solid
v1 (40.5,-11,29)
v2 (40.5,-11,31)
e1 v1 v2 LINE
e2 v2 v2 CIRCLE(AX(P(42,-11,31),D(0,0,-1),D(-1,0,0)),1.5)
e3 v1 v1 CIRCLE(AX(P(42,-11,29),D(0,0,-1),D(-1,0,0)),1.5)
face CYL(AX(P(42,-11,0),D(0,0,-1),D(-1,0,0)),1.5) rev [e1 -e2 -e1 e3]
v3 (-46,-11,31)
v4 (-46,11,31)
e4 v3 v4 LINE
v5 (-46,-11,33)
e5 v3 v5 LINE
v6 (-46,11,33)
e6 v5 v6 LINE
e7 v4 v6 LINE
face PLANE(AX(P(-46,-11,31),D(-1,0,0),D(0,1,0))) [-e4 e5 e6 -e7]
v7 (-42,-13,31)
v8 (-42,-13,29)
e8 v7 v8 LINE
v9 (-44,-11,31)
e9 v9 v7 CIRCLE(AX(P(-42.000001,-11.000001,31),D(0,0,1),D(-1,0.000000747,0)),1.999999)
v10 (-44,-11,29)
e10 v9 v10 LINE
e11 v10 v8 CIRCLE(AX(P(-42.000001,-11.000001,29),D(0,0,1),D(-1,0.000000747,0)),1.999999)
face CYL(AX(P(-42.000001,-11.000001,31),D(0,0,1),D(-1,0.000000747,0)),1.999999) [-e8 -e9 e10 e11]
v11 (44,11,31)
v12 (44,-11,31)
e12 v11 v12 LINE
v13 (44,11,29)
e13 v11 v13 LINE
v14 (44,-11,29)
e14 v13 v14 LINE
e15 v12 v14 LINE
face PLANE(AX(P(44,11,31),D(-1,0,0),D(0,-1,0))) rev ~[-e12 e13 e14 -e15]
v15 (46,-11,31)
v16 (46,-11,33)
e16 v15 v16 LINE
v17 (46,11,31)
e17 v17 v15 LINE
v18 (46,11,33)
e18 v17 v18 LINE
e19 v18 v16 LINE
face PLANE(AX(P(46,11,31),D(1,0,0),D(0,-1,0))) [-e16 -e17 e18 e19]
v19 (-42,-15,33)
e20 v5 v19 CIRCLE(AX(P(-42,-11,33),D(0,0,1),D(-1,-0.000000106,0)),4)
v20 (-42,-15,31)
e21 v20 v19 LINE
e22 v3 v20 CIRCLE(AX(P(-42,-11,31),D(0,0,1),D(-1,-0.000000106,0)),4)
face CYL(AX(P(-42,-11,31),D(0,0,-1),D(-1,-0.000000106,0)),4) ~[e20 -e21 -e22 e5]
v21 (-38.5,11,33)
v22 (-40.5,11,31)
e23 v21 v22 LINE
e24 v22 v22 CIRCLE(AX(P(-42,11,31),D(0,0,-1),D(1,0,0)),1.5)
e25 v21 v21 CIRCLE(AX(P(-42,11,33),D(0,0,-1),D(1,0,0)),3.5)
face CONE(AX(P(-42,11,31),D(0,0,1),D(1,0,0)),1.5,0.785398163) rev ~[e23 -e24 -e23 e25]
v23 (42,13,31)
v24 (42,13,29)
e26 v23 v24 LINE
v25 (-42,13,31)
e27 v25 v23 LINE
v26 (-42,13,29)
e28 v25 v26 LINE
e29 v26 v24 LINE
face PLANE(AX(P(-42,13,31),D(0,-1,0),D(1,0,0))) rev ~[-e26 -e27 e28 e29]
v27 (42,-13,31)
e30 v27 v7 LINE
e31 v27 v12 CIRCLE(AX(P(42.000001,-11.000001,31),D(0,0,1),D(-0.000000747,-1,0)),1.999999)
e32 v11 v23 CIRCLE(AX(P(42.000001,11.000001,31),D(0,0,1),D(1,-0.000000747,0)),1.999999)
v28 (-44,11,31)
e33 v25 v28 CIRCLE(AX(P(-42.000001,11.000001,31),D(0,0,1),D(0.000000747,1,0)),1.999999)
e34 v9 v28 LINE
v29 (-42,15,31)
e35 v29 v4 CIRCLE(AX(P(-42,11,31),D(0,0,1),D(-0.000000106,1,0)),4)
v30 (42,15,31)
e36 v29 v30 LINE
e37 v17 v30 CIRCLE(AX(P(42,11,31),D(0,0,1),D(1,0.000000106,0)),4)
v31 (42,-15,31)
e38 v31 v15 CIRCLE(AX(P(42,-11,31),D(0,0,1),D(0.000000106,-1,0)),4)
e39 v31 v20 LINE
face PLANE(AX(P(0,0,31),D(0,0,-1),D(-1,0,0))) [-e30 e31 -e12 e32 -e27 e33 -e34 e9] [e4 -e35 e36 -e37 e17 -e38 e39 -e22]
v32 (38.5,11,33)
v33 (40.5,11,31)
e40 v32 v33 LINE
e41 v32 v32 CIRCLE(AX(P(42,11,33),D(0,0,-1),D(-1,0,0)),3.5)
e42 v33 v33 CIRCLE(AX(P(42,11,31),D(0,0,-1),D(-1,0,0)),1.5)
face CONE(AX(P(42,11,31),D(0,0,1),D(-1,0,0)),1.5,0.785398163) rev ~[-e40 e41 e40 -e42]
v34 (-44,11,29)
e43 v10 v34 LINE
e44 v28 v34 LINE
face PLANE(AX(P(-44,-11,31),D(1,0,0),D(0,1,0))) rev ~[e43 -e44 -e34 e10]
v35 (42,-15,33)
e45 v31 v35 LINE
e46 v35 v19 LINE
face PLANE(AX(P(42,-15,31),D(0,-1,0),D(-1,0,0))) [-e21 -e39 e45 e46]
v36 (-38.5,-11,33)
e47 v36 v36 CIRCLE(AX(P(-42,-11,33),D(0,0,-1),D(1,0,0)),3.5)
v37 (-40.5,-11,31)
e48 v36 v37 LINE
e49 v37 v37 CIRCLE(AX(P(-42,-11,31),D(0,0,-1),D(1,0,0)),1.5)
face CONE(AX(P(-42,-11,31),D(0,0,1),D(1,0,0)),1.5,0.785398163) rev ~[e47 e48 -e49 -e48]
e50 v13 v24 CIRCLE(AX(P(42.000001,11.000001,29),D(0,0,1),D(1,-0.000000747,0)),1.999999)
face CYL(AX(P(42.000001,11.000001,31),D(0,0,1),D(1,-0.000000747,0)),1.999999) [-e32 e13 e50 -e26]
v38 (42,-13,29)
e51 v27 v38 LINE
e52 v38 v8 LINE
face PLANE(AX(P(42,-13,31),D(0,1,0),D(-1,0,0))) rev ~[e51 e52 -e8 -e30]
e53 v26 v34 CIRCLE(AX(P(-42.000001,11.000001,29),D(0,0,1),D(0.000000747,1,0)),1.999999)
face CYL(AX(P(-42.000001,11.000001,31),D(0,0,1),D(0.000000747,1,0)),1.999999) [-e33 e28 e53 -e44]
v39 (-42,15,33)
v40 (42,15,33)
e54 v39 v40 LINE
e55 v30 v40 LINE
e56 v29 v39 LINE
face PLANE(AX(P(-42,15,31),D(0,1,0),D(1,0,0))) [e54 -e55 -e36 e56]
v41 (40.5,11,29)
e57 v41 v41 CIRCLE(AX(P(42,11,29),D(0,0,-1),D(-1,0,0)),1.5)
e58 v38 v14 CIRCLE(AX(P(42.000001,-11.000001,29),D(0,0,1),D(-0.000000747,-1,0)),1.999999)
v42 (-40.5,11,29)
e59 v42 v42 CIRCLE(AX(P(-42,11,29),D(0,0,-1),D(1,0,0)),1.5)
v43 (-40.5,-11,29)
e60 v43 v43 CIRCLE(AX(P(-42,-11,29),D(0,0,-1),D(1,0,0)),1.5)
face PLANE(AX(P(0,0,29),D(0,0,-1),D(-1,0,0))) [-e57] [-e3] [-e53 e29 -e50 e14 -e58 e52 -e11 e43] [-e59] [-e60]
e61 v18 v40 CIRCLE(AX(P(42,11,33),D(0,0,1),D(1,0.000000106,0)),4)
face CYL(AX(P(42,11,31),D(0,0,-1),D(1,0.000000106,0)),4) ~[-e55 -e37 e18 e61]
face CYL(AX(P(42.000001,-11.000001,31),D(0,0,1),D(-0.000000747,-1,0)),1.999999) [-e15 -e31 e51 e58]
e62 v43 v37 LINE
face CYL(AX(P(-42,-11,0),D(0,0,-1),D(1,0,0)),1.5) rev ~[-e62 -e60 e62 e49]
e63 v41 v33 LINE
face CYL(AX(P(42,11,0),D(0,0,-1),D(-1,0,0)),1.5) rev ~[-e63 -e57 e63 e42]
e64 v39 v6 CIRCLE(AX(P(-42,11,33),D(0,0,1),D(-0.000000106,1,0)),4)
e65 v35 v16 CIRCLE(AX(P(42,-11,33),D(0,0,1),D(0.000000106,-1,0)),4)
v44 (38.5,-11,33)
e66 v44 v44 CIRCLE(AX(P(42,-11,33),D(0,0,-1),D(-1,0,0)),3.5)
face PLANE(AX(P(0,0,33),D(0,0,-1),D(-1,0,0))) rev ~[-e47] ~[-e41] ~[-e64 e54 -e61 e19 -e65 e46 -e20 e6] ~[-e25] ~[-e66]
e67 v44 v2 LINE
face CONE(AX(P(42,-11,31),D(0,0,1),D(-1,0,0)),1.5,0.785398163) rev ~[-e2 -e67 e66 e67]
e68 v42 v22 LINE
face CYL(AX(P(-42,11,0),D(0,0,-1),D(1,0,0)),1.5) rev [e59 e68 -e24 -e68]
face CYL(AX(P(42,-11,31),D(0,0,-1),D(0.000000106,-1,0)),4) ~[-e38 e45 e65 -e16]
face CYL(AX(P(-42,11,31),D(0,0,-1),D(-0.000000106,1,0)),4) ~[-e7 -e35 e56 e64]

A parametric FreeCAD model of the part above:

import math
import FreeCAD as App
import Part
import Sketcher
from FreeCAD import Vector
Q = App.Units.Quantity


def edges_at(feature, points):
    """Names of the edges that pass closest to the given points."""
    edges = feature.Shape.Edges
    near = lambda p: min(range(len(edges)), key=lambda i: edges[i].distToShape(Part.Vertex(*p))[0])
    return sorted({f"Edge{near(p) + 1}" for p in points})

doc = App.newDocument("Part")
body = doc.addObject("PartDesign::Body", "Body")

sketch1 = doc.addObject("Sketcher::SketchObject", "Sketch")
body.addObject(sketch1)
sketch1.AttachmentSupport = (doc.XY_Plane, [""])
sketch1.MapMode = "FlatFace"
sketch1.AttachmentOffset = App.Placement(Vector(0, 0, 31), App.Rotation())
sketch1.addGeometry([
    Part.LineSegment(Vector(42, 15, 0), Vector(-42, 15, 0)),
    Part.ArcOfCircle(Part.Circle(Vector(-42, 11, 0), Vector(0, 0, 1), 4), math.radians(90), math.radians(180)),
    Part.LineSegment(Vector(-46, 11, 0), Vector(-46, -11, 0)),
    Part.ArcOfCircle(Part.Circle(Vector(-42, -11, 0), Vector(0, 0, 1), 4), math.radians(-180), math.radians(-90)),
    Part.LineSegment(Vector(-42, -15, 0), Vector(42, -15, 0)),
    Part.ArcOfCircle(Part.Circle(Vector(42, -11, 0), Vector(0, 0, 1), 4), math.radians(-90), math.radians(0)),
    Part.LineSegment(Vector(46, -11, 0), Vector(46, 11, 0)),
    Part.ArcOfCircle(Part.Circle(Vector(42, 11, 0), Vector(0, 0, 1), 4), math.radians(0), math.radians(90)),
], False)
sketch1.addConstraint([
    Sketcher.Constraint("Tangent", 0, 2, 1, 1),
    Sketcher.Constraint("Tangent", 1, 2, 2, 1),
    Sketcher.Constraint("Tangent", 2, 2, 3, 1),
    Sketcher.Constraint("Tangent", 3, 2, 4, 1),
    Sketcher.Constraint("Tangent", 4, 2, 5, 1),
    Sketcher.Constraint("Tangent", 5, 2, 6, 1),
    Sketcher.Constraint("Tangent", 6, 2, 7, 1),
    Sketcher.Constraint("Tangent", 7, 2, 0, 1),
    Sketcher.Constraint("Horizontal", 0),
    Sketcher.Constraint("Vertical", 2),
    Sketcher.Constraint("Horizontal", 4),
    Sketcher.Constraint("Vertical", 6),
    Sketcher.Constraint("Equal", 1, 3),
    Sketcher.Constraint("Equal", 3, 5),
    Sketcher.Constraint("Equal", 5, 7),
    Sketcher.Constraint("Symmetric", 1, 3, 5, 3, -1, 1),
    Sketcher.Constraint("Radius", 1, Q("4 mm")),
    Sketcher.Constraint("DistanceX", 0, 2, 0, 1, Q("84 mm")),
    Sketcher.Constraint("DistanceY", 2, 2, 2, 1, Q("22 mm")),
])
pad1 = doc.addObject("PartDesign::Pad", "Pad")
body.addObject(pad1)
pad1.Profile = sketch1
pad1.Length = 2

sketch2 = doc.addObject("Sketcher::SketchObject", "Sketch001")
body.addObject(sketch2)
sketch2.AttachmentSupport = (doc.XY_Plane, [""])
sketch2.MapMode = "FlatFace"
sketch2.AttachmentOffset = App.Placement(Vector(0, 0, 31), App.Rotation())
sketch2.addGeometry([
    Part.LineSegment(Vector(42, 13, 0), Vector(-42, 13, 0)),
    Part.ArcOfCircle(Part.Circle(Vector(-42, 11, 0), Vector(0, 0, 1), 2), math.radians(90), math.radians(180)),
    Part.LineSegment(Vector(-44, 11, 0), Vector(-44, -11, 0)),
    Part.ArcOfCircle(Part.Circle(Vector(-42, -11, 0), Vector(0, 0, 1), 2), math.radians(180), math.radians(270)),
    Part.LineSegment(Vector(-42, -13, 0), Vector(42, -13, 0)),
    Part.ArcOfCircle(Part.Circle(Vector(42, -11, 0), Vector(0, 0, 1), 2), math.radians(-90), math.radians(0)),
    Part.LineSegment(Vector(44, -11, 0), Vector(44, 11, 0)),
    Part.ArcOfCircle(Part.Circle(Vector(42, 11, 0), Vector(0, 0, 1), 2), math.radians(0), math.radians(90)),
], False)
sketch2.addConstraint([
    Sketcher.Constraint("Tangent", 0, 2, 1, 1),
    Sketcher.Constraint("Tangent", 1, 2, 2, 1),
    Sketcher.Constraint("Tangent", 2, 2, 3, 1),
    Sketcher.Constraint("Tangent", 3, 2, 4, 1),
    Sketcher.Constraint("Tangent", 4, 2, 5, 1),
    Sketcher.Constraint("Tangent", 5, 2, 6, 1),
    Sketcher.Constraint("Tangent", 6, 2, 7, 1),
    Sketcher.Constraint("Tangent", 7, 2, 0, 1),
    Sketcher.Constraint("Horizontal", 0),
    Sketcher.Constraint("Vertical", 2),
    Sketcher.Constraint("Horizontal", 4),
    Sketcher.Constraint("Vertical", 6),
    Sketcher.Constraint("Equal", 1, 3),
    Sketcher.Constraint("Equal", 3, 5),
    Sketcher.Constraint("Equal", 5, 7),
    Sketcher.Constraint("Symmetric", 1, 3, 5, 3, -1, 1),
    Sketcher.Constraint("Radius", 1, Q("1.999999 mm")),
    Sketcher.Constraint("DistanceX", 0, 2, 0, 1, Q("84 mm")),
    Sketcher.Constraint("DistanceY", 2, 2, 2, 1, Q("22 mm")),
])
pad2 = doc.addObject("PartDesign::Pad", "Pad001")
body.addObject(pad2)
pad2.Profile = sketch2
pad2.Length = 2
pad2.Reversed = True

sketch3 = doc.addObject("Sketcher::SketchObject", "Sketch002")
body.addObject(sketch3)
sketch3.AttachmentSupport = (doc.XY_Plane, [""])
sketch3.MapMode = "FlatFace"
sketch3.addGeometry(Part.Circle(Vector(-42, 11, 0), Vector(0, 0, 1), 1.5), False)
sketch3.addConstraint([
    Sketcher.Constraint("Diameter", 0, Q("3 mm")),
    Sketcher.Constraint("DistanceX", 0, 3, -1, 1, Q("42 mm")),
    Sketcher.Constraint("DistanceY", -1, 1, 0, 3, Q("11 mm")),
])
pocket1 = doc.addObject("PartDesign::Pocket", "Pocket")
body.addObject(pocket1)
pocket1.Profile = sketch3
pocket1.Type = "ThroughAll"
pocket1.Reversed = True

sketch4 = doc.addObject("Sketcher::SketchObject", "Sketch003")
body.addObject(sketch4)
sketch4.AttachmentSupport = (doc.XY_Plane, [""])
sketch4.MapMode = "FlatFace"
sketch4.addGeometry(Part.Circle(Vector(42, 11, 0), Vector(0, 0, 1), 1.5), False)
sketch4.addConstraint([
    Sketcher.Constraint("Diameter", 0, Q("3 mm")),
    Sketcher.Constraint("DistanceX", -1, 1, 0, 3, Q("42 mm")),
    Sketcher.Constraint("DistanceY", -1, 1, 0, 3, Q("11 mm")),
])
pocket2 = doc.addObject("PartDesign::Pocket", "Pocket001")
body.addObject(pocket2)
pocket2.Profile = sketch4
pocket2.Type = "ThroughAll"
pocket2.Reversed = True
doc.recompute()

mirrored = doc.addObject("PartDesign::Mirrored", "Mirrored")
body.addObject(mirrored)
mirrored.Originals = [pocket1, pocket2]
mirrored.MirrorPlane = (doc.XZ_Plane, [""])
body.Tip = mirrored
doc.recompute()

chamfer = doc.addObject("PartDesign::Chamfer", "Chamfer")
body.addObject(chamfer)
chamfer.Base = (mirrored, edges_at(mirrored, [
    (-43.5, -11, 33),
    (-43.5, 11, 33),
    (43.5, 11, 33),
    (43.5, -11, 33),
]))
chamfer.Size = 2

doc.recompute()
